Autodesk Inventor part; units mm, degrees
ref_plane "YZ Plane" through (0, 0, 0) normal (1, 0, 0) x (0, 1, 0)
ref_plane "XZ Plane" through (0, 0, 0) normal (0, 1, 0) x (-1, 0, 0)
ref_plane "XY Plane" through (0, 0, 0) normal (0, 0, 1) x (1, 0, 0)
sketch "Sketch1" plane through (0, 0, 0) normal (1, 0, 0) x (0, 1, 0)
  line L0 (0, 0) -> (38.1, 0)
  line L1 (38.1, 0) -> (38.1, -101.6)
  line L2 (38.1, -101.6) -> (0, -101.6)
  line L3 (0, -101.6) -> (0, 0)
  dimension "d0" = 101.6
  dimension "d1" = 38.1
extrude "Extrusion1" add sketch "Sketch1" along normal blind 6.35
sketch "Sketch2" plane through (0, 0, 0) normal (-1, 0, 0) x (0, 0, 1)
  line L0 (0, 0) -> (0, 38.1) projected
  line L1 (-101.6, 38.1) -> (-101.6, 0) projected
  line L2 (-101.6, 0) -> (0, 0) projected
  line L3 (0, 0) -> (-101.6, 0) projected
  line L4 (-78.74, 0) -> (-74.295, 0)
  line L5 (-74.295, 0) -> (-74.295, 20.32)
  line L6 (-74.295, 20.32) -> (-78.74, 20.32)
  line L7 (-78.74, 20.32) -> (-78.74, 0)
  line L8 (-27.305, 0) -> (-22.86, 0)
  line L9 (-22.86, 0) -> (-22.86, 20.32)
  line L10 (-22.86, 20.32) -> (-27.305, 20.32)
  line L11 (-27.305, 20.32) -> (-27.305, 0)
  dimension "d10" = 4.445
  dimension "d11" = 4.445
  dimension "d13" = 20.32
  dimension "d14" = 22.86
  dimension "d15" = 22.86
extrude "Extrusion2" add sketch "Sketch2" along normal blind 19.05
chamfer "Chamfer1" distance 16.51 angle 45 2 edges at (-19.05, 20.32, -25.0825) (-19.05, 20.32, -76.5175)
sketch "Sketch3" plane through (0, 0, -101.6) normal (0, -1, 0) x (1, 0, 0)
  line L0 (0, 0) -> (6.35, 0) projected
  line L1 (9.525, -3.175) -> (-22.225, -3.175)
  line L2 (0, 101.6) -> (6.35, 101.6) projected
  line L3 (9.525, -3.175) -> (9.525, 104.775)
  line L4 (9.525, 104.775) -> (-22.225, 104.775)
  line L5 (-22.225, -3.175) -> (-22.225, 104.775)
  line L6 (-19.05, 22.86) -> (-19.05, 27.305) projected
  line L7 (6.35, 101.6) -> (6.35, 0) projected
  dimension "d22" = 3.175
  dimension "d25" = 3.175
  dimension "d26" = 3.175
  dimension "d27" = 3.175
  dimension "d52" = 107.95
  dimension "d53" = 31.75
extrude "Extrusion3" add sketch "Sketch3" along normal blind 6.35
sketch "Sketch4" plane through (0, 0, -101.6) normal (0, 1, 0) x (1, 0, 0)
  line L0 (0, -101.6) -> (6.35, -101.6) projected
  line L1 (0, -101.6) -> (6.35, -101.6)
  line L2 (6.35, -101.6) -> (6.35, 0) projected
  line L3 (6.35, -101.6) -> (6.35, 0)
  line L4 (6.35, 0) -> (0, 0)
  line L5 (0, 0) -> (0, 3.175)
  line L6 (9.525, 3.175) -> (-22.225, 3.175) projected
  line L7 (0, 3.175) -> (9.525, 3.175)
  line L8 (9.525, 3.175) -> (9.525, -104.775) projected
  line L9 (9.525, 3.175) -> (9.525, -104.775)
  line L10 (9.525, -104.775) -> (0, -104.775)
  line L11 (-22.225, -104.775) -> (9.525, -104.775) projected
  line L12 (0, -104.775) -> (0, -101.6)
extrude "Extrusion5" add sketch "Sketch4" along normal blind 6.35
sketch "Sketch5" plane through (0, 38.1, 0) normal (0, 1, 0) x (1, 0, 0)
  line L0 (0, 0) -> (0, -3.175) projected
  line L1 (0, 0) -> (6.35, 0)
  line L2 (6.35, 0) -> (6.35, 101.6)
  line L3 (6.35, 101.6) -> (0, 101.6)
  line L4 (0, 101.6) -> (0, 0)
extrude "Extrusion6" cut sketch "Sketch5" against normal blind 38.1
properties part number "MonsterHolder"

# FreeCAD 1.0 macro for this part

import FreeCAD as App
import Part
import Sketcher

V = App.Vector
Q = App.Units.Quantity


def edges_at(feature, points):
    """Names of the edges that pass closest to the given points."""
    edges = feature.Shape.Edges
    near = lambda p: min(range(len(edges)), key=lambda i: edges[i].distToShape(Part.Vertex(*p))[0])
    return sorted({f"Edge{near(p) + 1}" for p in points})

doc = App.newDocument("Part")
body = doc.addObject("PartDesign::Body", "Body")

sketch1 = body.newObject("Sketcher::SketchObject", "Sketch")
sketch1.AttachmentSupport = (doc.getObject("YZ_Plane"), [""])
sketch1.MapMode = "FlatFace"
sketch1.addGeometry(Part.LineSegment(V(38, 0, 0), V(0, 0, 0)), False)
sketch1.addGeometry(Part.LineSegment(V(0, 0, 0), V(0, -102, 0)), False)
sketch1.addGeometry(Part.LineSegment(V(0, -102, 0), V(38, -102, 0)), False)
sketch1.addGeometry(Part.LineSegment(V(38, -102, 0), V(38, 0, 0)), False)
sketch1.addConstraint(Sketcher.Constraint("Coincident", 0, 2, 1, 1))
sketch1.addConstraint(Sketcher.Constraint("Coincident", 1, 2, 2, 1))
sketch1.addConstraint(Sketcher.Constraint("Coincident", 2, 2, 3, 1))
sketch1.addConstraint(Sketcher.Constraint("Coincident", 3, 2, 0, 1))
sketch1.addConstraint(Sketcher.Constraint("Horizontal", 0))
sketch1.addConstraint(Sketcher.Constraint("Vertical", 1))
sketch1.addConstraint(Sketcher.Constraint("Horizontal", 2))
sketch1.addConstraint(Sketcher.Constraint("Vertical", 3))
sketch1.addConstraint(Sketcher.Constraint("Coincident", 0, 2, -1, 1))
sketch1.addConstraint(Sketcher.Constraint("DistanceY", 1, 2, 1, 1, Q("4 in")))
sketch1.addConstraint(Sketcher.Constraint("DistanceX", 0, 2, 0, 1, Q("1.5 in")))
pad1 = body.newObject("PartDesign::Pad", "Pad")
pad1.Profile = sketch1
pad1.Length = Q("0.25 in")

sketch2 = body.newObject("Sketcher::SketchObject", "Sketch001")
sketch2.AttachmentSupport = (doc.getObject("YZ_Plane"), [""])
sketch2.MapMode = "FlatFace"
sketch2.addGeometry(Part.LineSegment(V(20.3, -78.7, 0), V(0, -78.7, 0)), False)
sketch2.addGeometry(Part.LineSegment(V(0, -78.7, 0), V(0, -74.3, 0)), False)
sketch2.addGeometry(Part.LineSegment(V(0, -74.3, 0), V(20.3, -74.3, 0)), False)
sketch2.addGeometry(Part.LineSegment(V(20.3, -74.3, 0), V(20.3, -78.7, 0)), False)
sketch2.addGeometry(Part.LineSegment(V(20.3, -27.3, 0), V(0, -27.3, 0)), False)
sketch2.addGeometry(Part.LineSegment(V(0, -27.3, 0), V(0, -22.9, 0)), False)
sketch2.addGeometry(Part.LineSegment(V(0, -22.9, 0), V(20.3, -22.9, 0)), False)
sketch2.addGeometry(Part.LineSegment(V(20.3, -22.9, 0), V(20.3, -27.3, 0)), False)
sketch2.addConstraint(Sketcher.Constraint("Coincident", 0, 2, 1, 1))
sketch2.addConstraint(Sketcher.Constraint("Coincident", 1, 2, 2, 1))
sketch2.addConstraint(Sketcher.Constraint("Coincident", 2, 2, 3, 1))
sketch2.addConstraint(Sketcher.Constraint("Coincident", 3, 2, 0, 1))
sketch2.addConstraint(Sketcher.Constraint("Coincident", 4, 2, 5, 1))
sketch2.addConstraint(Sketcher.Constraint("Coincident", 5, 2, 6, 1))
sketch2.addConstraint(Sketcher.Constraint("Coincident", 6, 2, 7, 1))
sketch2.addConstraint(Sketcher.Constraint("Coincident", 7, 2, 4, 1))
sketch2.addConstraint(Sketcher.Constraint("Horizontal", 0))
sketch2.addConstraint(Sketcher.Constraint("Vertical", 1))
sketch2.addConstraint(Sketcher.Constraint("Horizontal", 2))
sketch2.addConstraint(Sketcher.Constraint("Vertical", 3))
sketch2.addConstraint(Sketcher.Constraint("Horizontal", 4))
sketch2.addConstraint(Sketcher.Constraint("Vertical", 5))
sketch2.addConstraint(Sketcher.Constraint("Horizontal", 6))
sketch2.addConstraint(Sketcher.Constraint("Vertical", 7))
sketch2.addConstraint(Sketcher.Constraint("PointOnObject", 0, 2, -2))
sketch2.addConstraint(Sketcher.Constraint("PointOnObject", 4, 2, -2))
sketch2.addConstraint(Sketcher.Constraint("Vertical", 3, 2, 6, 2))
sketch2.addConstraint(Sketcher.Constraint("Equal", 3, 5))
sketch2.addConstraint(Sketcher.Constraint("DistanceX", 0, 2, 0, 1, Q("0.8 in")))
sketch2.addConstraint(Sketcher.Constraint("DistanceY", 5, 2, -1, 1, Q("0.9 in")))
sketch2.addConstraint(Sketcher.Constraint("DistanceY", 1, 1, 1, 2, Q("0.175 in")))
sketch2.addConstraint(Sketcher.Constraint("DistanceY", 0, 2, -1, 1, Q("3.1 in")))
pad2 = body.newObject("PartDesign::Pad", "Pad001")
pad2.Profile = sketch2
pad2.Length = Q("0.75 in")
pad2.Reversed = True
doc.recompute()

chamfer = body.newObject("PartDesign::Chamfer", "Chamfer")
chamfer.Base = (pad2, edges_at(pad2, [(-19.05, 20.32, -25.082), (-19.05, 20.32, -76.517)]))
chamfer.Size = Q("0.65 in")

sketch3 = body.newObject("Sketcher::SketchObject", "Sketch002")
sketch3.AttachmentSupport = (doc.getObject("XZ_Plane"), [""])
sketch3.MapMode = "FlatFace"
sketch3.addGeometry(Part.LineSegment(V(-22, -105, 0), V(10, -105, 0)), False)
sketch3.addGeometry(Part.LineSegment(V(10, -105, 0), V(10, 3, 0)), False)
sketch3.addGeometry(Part.LineSegment(V(10, 3, 0), V(-22, 3, 0)), False)
sketch3.addGeometry(Part.LineSegment(V(-22, 3, 0), V(-22, -105, 0)), False)
sketch3.addConstraint(Sketcher.Constraint("Coincident", 0, 2, 1, 1))
sketch3.addConstraint(Sketcher.Constraint("Coincident", 1, 2, 2, 1))
sketch3.addConstraint(Sketcher.Constraint("Coincident", 2, 2, 3, 1))
sketch3.addConstraint(Sketcher.Constraint("Coincident", 3, 2, 0, 1))
sketch3.addConstraint(Sketcher.Constraint("Horizontal", 0))
sketch3.addConstraint(Sketcher.Constraint("Vertical", 1))
sketch3.addConstraint(Sketcher.Constraint("Horizontal", 2))
sketch3.addConstraint(Sketcher.Constraint("Vertical", 3))
sketch3.addConstraint(Sketcher.Constraint("DistanceX", 0, 1, 0, 2, Q("1.25 in")))
sketch3.addConstraint(Sketcher.Constraint("DistanceY", 1, 1, 1, 2, Q("4.25 in")))
sketch3.addConstraint(Sketcher.Constraint("DistanceY", -1, 1, 1, 2, Q("0.125 in")))
sketch3.addConstraint(Sketcher.Constraint("DistanceX", -1, 1, 0, 2, Q("0.375 in")))
pad3 = body.newObject("PartDesign::Pad", "Pad002")
pad3.Profile = sketch3
pad3.Length = Q("0.25 in")

sketch4 = body.newObject("Sketcher::SketchObject", "Sketch003")
sketch4.AttachmentSupport = (doc.getObject("XZ_Plane"), [""])
sketch4.MapMode = "FlatFace"
sketch4.addGeometry(Part.LineSegment(V(6.3, 0, 0), V(0, 0, 0)), False)
sketch4.addGeometry(Part.LineSegment(V(0, 0, 0), V(0, 3.2, 0)), False)
sketch4.addGeometry(Part.LineSegment(V(0, 3.2, 0), V(9.5, 3.2, 0)), False)
sketch4.addGeometry(Part.LineSegment(V(9.5, 3.2, 0), V(9.5, -104.8, 0)), False)
sketch4.addGeometry(Part.LineSegment(V(9.5, -104.8, 0), V(0, -104.8, 0)), False)
sketch4.addGeometry(Part.LineSegment(V(0, -104.8, 0), V(0, -101.6, 0)), False)
sketch4.addGeometry(Part.LineSegment(V(0, -101.6, 0), V(6.3, -101.6, 0)), False)
sketch4.addGeometry(Part.LineSegment(V(6.3, -101.6, 0), V(6.3, 0, 0)), False)
sketch4.addConstraint(Sketcher.Constraint("Coincident", 0, 2, 1, 1))
sketch4.addConstraint(Sketcher.Constraint("Coincident", 1, 2, 2, 1))
sketch4.addConstraint(Sketcher.Constraint("Coincident", 2, 2, 3, 1))
sketch4.addConstraint(Sketcher.Constraint("Coincident", 3, 2, 4, 1))
sketch4.addConstraint(Sketcher.Constraint("Coincident", 4, 2, 5, 1))
sketch4.addConstraint(Sketcher.Constraint("Coincident", 5, 2, 6, 1))
sketch4.addConstraint(Sketcher.Constraint("Coincident", 6, 2, 7, 1))
sketch4.addConstraint(Sketcher.Constraint("Coincident", 7, 2, 0, 1))
sketch4.addConstraint(Sketcher.Constraint("Horizontal", 0))
sketch4.addConstraint(Sketcher.Constraint("Vertical", 1))
sketch4.addConstraint(Sketcher.Constraint("Horizontal", 2))
sketch4.addConstraint(Sketcher.Constraint("Vertical", 3))
sketch4.addConstraint(Sketcher.Constraint("Horizontal", 4))
sketch4.addConstraint(Sketcher.Constraint("Vertical", 5))
sketch4.addConstraint(Sketcher.Constraint("Horizontal", 6))
sketch4.addConstraint(Sketcher.Constraint("Vertical", 7))
sketch4.addConstraint(Sketcher.Constraint("Coincident", 0, 2, -1, 1))
sketch4.addConstraint(Sketcher.Constraint("PointOnObject", 4, 2, -2))
sketch4.addConstraint(Sketcher.Constraint("Equal", 1, 5))
sketch4.addConstraint(Sketcher.Constraint("DistanceY", 7, 1, 7, 2, Q("4 in")))
sketch4.addConstraint(Sketcher.Constraint("DistanceX", 0, 2, 0, 1, Q("0.25 in")))
sketch4.addConstraint(Sketcher.Constraint("DistanceY", 3, 2, 3, 1, Q("4.25 in")))
sketch4.addConstraint(Sketcher.Constraint("DistanceX", 2, 1, 2, 2, Q("0.375 in")))
pad4 = body.newObject("PartDesign::Pad", "Pad003")
pad4.Profile = sketch4
pad4.Length = Q("0.25 in")
pad4.Reversed = True

sketch5 = body.newObject("Sketcher::SketchObject", "Sketch004")
sketch5.AttachmentSupport = (doc.getObject("XZ_Plane"), [""])
sketch5.MapMode = "FlatFace"
sketch5.AttachmentOffset = App.Placement(V(0, 0, -1.5 * 25.4), App.Rotation())
sketch5.addGeometry(Part.LineSegment(V(0, -102, 0), V(0, 0, 0)), False)
sketch5.addGeometry(Part.LineSegment(V(0, 0, 0), V(6, 0, 0)), False)
sketch5.addGeometry(Part.LineSegment(V(6, 0, 0), V(6, -102, 0)), False)
sketch5.addGeometry(Part.LineSegment(V(6, -102, 0), V(0, -102, 0)), False)
sketch5.addConstraint(Sketcher.Constraint("Coincident", 0, 2, 1, 1))
sketch5.addConstraint(Sketcher.Constraint("Coincident", 1, 2, 2, 1))
sketch5.addConstraint(Sketcher.Constraint("Coincident", 2, 2, 3, 1))
sketch5.addConstraint(Sketcher.Constraint("Coincident", 3, 2, 0, 1))
sketch5.addConstraint(Sketcher.Constraint("Vertical", 0))
sketch5.addConstraint(Sketcher.Constraint("Horizontal", 1))
sketch5.addConstraint(Sketcher.Constraint("Vertical", 2))
sketch5.addConstraint(Sketcher.Constraint("Horizontal", 3))
sketch5.addConstraint(Sketcher.Constraint("Coincident", 0, 2, -1, 1))
sketch5.addConstraint(Sketcher.Constraint("DistanceY", 0, 1, 0, 2, Q("4 in")))
sketch5.addConstraint(Sketcher.Constraint("DistanceX", 1, 1, 1, 2, Q("0.25 in")))
pocket1 = body.newObject("PartDesign::Pocket", "Pocket")
pocket1.Profile = sketch5
pocket1.Length = Q("1.5 in")
pocket1.Reversed = True

doc.recompute()
